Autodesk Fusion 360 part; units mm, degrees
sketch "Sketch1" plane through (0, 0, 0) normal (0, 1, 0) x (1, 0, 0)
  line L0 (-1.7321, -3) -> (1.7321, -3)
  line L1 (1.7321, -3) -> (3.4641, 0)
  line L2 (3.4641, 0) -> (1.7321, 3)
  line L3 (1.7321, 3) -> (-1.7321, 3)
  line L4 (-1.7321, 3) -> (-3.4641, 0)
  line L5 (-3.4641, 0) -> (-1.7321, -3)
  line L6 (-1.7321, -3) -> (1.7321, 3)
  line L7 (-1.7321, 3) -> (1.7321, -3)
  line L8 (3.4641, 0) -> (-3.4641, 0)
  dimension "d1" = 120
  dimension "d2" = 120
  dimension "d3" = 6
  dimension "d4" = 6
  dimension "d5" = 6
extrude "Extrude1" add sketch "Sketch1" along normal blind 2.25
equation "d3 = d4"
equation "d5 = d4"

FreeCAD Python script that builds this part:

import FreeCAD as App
import Part
import Sketcher

V = App.Vector
Q = App.Units.Quantity

doc = App.newDocument("Part")
body = doc.addObject("PartDesign::Body", "Body")

# Sketch on XZ plane
sketch1 = doc.addObject("Sketcher::SketchObject", "Sketch")
body.addObject(sketch1)
sketch1.AttachmentSupport = (doc.XZ_Plane, [""])
sketch1.MapMode = "FlatFace"
sketch1.addGeometry([
    Part.LineSegment(V(-1.7, 3, 0), V(1.7, 3, 0)),  # 0
    Part.LineSegment(V(1.7, 3, 0), V(3.5, 0, 0)),  # 1
    Part.LineSegment(V(3.5, 0, 0), V(1.7, -3, 0)),  # 2
    Part.LineSegment(V(1.7, -3, 0), V(-1.7, -3, 0)),  # 3
    Part.LineSegment(V(-1.7, -3, 0), V(-3.5, 0, 0)),  # 4
    Part.LineSegment(V(-3.5, 0, 0), V(-1.7, 3, 0)),  # 5
], False)
sketch1.addConstraint([
    Sketcher.Constraint("Coincident", 0, 2, 1, 1),
    Sketcher.Constraint("Coincident", 1, 2, 2, 1),
    Sketcher.Constraint("Coincident", 2, 2, 3, 1),
    Sketcher.Constraint("Coincident", 3, 2, 4, 1),
    Sketcher.Constraint("Coincident", 4, 2, 5, 1),
    Sketcher.Constraint("Coincident", 5, 2, 0, 1),
    Sketcher.Constraint("Horizontal", 0),
    Sketcher.Constraint("Horizontal", 3),
    Sketcher.Constraint("Symmetric", 0, 2, 3, 2, -1, 1),
    Sketcher.Constraint("Symmetric", 1, 2, 4, 2, -1, 1),
    Sketcher.Constraint("PointOnObject", 1, 2, -1),
    Sketcher.Constraint("Parallel", 2, 5),
    Sketcher.Constraint("Vertical", 0, 2, 2, 2),
    Sketcher.Constraint("DistanceY", 2, 2, 0, 2, Q("6 mm")),
    Sketcher.Constraint("Angle", 1, Q("-60.0007 deg")),
    Sketcher.Constraint("DistanceX", 0, 1, 0, 2, Q("3.4642 mm")),
])
pad1 = doc.addObject("PartDesign::Pad", "Pad")
body.addObject(pad1)
pad1.Profile = sketch1
pad1.Length = 2.25
pad1.Reversed = True

doc.recompute()
